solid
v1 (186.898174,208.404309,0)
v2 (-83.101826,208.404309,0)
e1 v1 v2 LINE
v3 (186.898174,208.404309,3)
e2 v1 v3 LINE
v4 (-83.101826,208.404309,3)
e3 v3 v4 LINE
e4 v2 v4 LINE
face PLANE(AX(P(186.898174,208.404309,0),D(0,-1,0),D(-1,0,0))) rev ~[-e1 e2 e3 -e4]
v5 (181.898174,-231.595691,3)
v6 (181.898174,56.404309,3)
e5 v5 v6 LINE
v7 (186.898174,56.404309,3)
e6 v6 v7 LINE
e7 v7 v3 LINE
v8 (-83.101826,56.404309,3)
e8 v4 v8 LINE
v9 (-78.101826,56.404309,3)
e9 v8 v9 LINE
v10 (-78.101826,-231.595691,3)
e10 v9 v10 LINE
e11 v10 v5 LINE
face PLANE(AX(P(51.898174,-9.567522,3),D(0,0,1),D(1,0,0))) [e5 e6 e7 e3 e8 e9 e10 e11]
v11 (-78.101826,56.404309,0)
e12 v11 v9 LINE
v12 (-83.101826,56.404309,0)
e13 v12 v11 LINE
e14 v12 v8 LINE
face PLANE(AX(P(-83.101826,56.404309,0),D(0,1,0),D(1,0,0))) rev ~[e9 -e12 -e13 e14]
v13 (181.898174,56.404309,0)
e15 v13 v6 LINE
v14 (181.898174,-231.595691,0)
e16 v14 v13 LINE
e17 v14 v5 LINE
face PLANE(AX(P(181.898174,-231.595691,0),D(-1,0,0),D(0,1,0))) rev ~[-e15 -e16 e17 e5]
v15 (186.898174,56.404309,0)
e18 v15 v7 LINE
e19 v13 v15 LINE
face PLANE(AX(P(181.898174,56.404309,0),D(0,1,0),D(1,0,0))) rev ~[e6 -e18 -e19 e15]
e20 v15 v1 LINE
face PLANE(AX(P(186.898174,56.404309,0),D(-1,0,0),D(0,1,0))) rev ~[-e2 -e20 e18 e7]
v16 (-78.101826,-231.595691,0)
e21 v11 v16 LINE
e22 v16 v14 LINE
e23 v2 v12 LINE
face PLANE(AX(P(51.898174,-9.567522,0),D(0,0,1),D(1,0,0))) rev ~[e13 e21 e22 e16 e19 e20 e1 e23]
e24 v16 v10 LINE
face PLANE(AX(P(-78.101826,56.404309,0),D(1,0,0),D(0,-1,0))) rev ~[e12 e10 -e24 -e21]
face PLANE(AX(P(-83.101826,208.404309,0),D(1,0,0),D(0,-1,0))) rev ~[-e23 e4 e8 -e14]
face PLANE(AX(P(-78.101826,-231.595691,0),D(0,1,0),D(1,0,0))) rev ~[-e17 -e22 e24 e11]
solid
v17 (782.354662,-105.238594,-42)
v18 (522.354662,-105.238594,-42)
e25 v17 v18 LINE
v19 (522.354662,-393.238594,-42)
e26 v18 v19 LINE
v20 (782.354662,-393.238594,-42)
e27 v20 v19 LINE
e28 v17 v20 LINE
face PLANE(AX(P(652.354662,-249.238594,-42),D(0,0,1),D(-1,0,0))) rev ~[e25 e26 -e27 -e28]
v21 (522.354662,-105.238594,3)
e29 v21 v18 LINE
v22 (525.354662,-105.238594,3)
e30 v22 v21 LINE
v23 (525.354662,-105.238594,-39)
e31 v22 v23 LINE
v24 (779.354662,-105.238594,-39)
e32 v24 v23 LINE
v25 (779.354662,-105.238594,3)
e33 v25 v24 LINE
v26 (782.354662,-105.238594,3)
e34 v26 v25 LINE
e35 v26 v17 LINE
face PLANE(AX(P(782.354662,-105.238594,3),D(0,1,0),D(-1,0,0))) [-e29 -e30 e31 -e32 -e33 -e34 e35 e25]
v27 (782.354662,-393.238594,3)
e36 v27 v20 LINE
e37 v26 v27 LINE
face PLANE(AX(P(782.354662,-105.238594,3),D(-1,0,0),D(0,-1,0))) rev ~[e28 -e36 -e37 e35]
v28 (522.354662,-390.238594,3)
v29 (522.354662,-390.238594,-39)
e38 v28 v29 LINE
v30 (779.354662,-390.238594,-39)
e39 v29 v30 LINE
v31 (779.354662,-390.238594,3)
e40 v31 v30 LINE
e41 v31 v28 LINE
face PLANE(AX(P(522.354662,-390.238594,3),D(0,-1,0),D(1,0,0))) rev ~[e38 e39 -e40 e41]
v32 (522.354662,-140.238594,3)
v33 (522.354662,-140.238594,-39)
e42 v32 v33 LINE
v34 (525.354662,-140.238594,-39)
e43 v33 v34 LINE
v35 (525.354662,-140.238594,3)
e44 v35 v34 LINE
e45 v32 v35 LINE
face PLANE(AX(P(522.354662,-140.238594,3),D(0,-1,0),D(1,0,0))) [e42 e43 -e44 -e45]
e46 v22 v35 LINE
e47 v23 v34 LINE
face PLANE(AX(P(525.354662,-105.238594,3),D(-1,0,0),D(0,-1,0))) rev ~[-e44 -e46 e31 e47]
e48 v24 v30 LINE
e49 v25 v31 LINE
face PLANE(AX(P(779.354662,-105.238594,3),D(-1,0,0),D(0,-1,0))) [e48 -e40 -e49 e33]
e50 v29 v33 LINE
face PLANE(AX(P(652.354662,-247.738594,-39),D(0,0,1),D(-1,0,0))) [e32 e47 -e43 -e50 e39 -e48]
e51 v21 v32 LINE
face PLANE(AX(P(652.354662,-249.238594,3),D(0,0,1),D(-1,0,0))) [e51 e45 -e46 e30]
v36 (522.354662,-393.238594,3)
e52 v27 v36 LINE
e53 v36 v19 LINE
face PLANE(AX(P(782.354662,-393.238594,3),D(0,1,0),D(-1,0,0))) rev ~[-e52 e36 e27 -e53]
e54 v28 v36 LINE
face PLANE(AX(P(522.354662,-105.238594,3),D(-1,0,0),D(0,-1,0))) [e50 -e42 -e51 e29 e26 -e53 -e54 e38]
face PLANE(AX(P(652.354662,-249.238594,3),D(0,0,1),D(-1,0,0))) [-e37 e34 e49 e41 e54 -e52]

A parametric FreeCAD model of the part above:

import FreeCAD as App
import Part
import Sketcher

V = App.Vector


def add_polygon(sketch, points):
    """Adds a closed chain of lines whose ends are joined by coincident constraints."""
    first, n = sketch.GeometryCount, len(points)
    for a, b in zip(points, points[1:] + points[:1]):
        sketch.addGeometry(Part.LineSegment(App.Vector(*a, 0), App.Vector(*b, 0)), False)
    for i in range(n):
        sketch.addConstraint(Sketcher.Constraint("Coincident", first + i, 2, first + (i + 1) % n, 1))

doc = App.newDocument("Part")
body = doc.addObject("PartDesign::Body", "Body")

# Sketch on XY plane
sketch1 = doc.addObject("Sketcher::SketchObject", "Sketch")
body.addObject(sketch1)
sketch1.AttachmentSupport = (doc.XY_Plane, [""])
sketch1.MapMode = "FlatFace"
add_polygon(sketch1, [(187, 208), (-83, 208), (-83, 56), (-78, 56), (-78, -232), (182, -232), (182, 56), (187, 56)])  # lines 0-7
sketch1.addConstraint([
    Sketcher.Constraint("Horizontal", 0),
    Sketcher.Constraint("Vertical", 1),
    Sketcher.Constraint("Horizontal", 2),
    Sketcher.Constraint("Vertical", 3),
    Sketcher.Constraint("Horizontal", 4),
    Sketcher.Constraint("Vertical", 5),
    Sketcher.Constraint("Horizontal", 6),
    Sketcher.Constraint("Vertical", 7),
    Sketcher.Constraint("Horizontal", 2, 2, 5, 2),
    Sketcher.Constraint("Equal", 2, 6),
    Sketcher.Constraint("DistanceX", 0, 2, 0, 1, 270.0),
    Sketcher.Constraint("DistanceX", 2, 1, 2, 2, 5.0),
    Sketcher.Constraint("DistanceY", 1, 2, 1, 1, 152.0),
    Sketcher.Constraint("DistanceY", 3, 2, 3, 1, 288.0),
    Sketcher.Constraint("DistanceY", -1, 1, 0, 2, 208.404309),
    Sketcher.Constraint("DistanceX", 0, 2, -1, 1, 83.101826),
])
pad1 = doc.addObject("PartDesign::Pad", "Pad")
body.addObject(pad1)
pad1.Profile = sketch1
pad1.Length = 3
body2 = doc.addObject("PartDesign::Body", "Body001")

# Sketch on XY plane
sketch2 = doc.addObject("Sketcher::SketchObject", "Sketch001")
body2.addObject(sketch2)
sketch2.AttachmentSupport = (doc.getObject("XY_Plane001"), [""])
sketch2.MapMode = "FlatFace"
sketch2.AttachmentOffset = App.Placement(V(0, 0, 3), App.Rotation())
add_polygon(sketch2, [(262, 183), (262, -105), (522, -105), (522, 183)])  # lines 0-3
sketch2.addConstraint([
    Sketcher.Constraint("Vertical", 0),
    Sketcher.Constraint("Horizontal", 1),
    Sketcher.Constraint("Vertical", 2),
    Sketcher.Constraint("Horizontal", 3),
    Sketcher.Constraint("DistanceX", 1, 1, 1, 2, 260.0),
    Sketcher.Constraint("DistanceY", 0, 2, 0, 1, 288.0),
    Sketcher.Constraint("DistanceX", -1, 1, 0, 2, 262.354662),
    Sketcher.Constraint("DistanceY", 0, 2, -1, 1, 105.238594),
])
pad2 = doc.addObject("PartDesign::Pad", "Pad001")
body2.addObject(pad2)
pad2.Profile = sketch2
pad2.Length = 45
pad2.Reversed = True

# Sketch on XY plane
sketch3 = doc.addObject("Sketcher::SketchObject", "Sketch002")
body2.addObject(sketch3)
sketch3.AttachmentSupport = (doc.getObject("XY_Plane001"), [""])
sketch3.MapMode = "FlatFace"
sketch3.AttachmentOffset = App.Placement(V(0, 0, 3), App.Rotation())
add_polygon(sketch3, [(265, 180), (265, -105), (519, -105), (519, 180)])  # lines 0-3
sketch3.addConstraint([
    Sketcher.Constraint("Vertical", 0),
    Sketcher.Constraint("Horizontal", 1),
    Sketcher.Constraint("Vertical", 2),
    Sketcher.Constraint("Horizontal", 3),
    Sketcher.Constraint("DistanceX", 1, 1, 1, 2, 254.0),
    Sketcher.Constraint("DistanceY", 0, 2, 0, 1, 285.0),
    Sketcher.Constraint("DistanceX", -1, 1, 0, 2, 265.354662),
    Sketcher.Constraint("DistanceY", 0, 2, -1, 1, 105.238594),
])
pocket1 = doc.addObject("PartDesign::Pocket", "Pocket")
body2.addObject(pocket1)
pocket1.Profile = sketch3
pocket1.Length = 42
body3 = doc.addObject("PartDesign::Body", "Body002")
doc.recompute()

body2.Placement = App.Placement(V(1044.709324, -210.477188, 0), App.Rotation(V(0, 0, 1), 180))
boolean = doc.addObject("PartDesign::Boolean", "Boolean")
body3.addObject(boolean)
boolean.Type = "Fuse"
boolean.addObjects([body2])

# Sketch on XY plane
sketch4 = doc.addObject("Sketcher::SketchObject", "Sketch003")
body3.addObject(sketch4)
sketch4.AttachmentSupport = (doc.getObject("XY_Plane002"), [""])
sketch4.MapMode = "FlatFace"
sketch4.AttachmentOffset = App.Placement(V(0, 0, 3), App.Rotation())
add_polygon(sketch4, [(522.4, -140.2), (522.4, -390.2), (525.4, -390.2), (525.4, -140.2)])  # lines 0-3
sketch4.addConstraint([
    Sketcher.Constraint("Vertical", 0),
    Sketcher.Constraint("Horizontal", 1),
    Sketcher.Constraint("Vertical", 2),
    Sketcher.Constraint("Horizontal", 3),
    Sketcher.Constraint("DistanceX", 1, 1, 1, 2, 3.0),
    Sketcher.Constraint("DistanceY", 0, 2, 0, 1, 250.0),
    Sketcher.Constraint("DistanceX", -1, 1, 0, 2, 522.354662),
    Sketcher.Constraint("DistanceY", 0, 2, -1, 1, 390.238594),
])
pocket2 = doc.addObject("PartDesign::Pocket", "Pocket001")
body3.addObject(pocket2)
pocket2.Profile = sketch4
pocket2.Length = 42

doc.recompute()
